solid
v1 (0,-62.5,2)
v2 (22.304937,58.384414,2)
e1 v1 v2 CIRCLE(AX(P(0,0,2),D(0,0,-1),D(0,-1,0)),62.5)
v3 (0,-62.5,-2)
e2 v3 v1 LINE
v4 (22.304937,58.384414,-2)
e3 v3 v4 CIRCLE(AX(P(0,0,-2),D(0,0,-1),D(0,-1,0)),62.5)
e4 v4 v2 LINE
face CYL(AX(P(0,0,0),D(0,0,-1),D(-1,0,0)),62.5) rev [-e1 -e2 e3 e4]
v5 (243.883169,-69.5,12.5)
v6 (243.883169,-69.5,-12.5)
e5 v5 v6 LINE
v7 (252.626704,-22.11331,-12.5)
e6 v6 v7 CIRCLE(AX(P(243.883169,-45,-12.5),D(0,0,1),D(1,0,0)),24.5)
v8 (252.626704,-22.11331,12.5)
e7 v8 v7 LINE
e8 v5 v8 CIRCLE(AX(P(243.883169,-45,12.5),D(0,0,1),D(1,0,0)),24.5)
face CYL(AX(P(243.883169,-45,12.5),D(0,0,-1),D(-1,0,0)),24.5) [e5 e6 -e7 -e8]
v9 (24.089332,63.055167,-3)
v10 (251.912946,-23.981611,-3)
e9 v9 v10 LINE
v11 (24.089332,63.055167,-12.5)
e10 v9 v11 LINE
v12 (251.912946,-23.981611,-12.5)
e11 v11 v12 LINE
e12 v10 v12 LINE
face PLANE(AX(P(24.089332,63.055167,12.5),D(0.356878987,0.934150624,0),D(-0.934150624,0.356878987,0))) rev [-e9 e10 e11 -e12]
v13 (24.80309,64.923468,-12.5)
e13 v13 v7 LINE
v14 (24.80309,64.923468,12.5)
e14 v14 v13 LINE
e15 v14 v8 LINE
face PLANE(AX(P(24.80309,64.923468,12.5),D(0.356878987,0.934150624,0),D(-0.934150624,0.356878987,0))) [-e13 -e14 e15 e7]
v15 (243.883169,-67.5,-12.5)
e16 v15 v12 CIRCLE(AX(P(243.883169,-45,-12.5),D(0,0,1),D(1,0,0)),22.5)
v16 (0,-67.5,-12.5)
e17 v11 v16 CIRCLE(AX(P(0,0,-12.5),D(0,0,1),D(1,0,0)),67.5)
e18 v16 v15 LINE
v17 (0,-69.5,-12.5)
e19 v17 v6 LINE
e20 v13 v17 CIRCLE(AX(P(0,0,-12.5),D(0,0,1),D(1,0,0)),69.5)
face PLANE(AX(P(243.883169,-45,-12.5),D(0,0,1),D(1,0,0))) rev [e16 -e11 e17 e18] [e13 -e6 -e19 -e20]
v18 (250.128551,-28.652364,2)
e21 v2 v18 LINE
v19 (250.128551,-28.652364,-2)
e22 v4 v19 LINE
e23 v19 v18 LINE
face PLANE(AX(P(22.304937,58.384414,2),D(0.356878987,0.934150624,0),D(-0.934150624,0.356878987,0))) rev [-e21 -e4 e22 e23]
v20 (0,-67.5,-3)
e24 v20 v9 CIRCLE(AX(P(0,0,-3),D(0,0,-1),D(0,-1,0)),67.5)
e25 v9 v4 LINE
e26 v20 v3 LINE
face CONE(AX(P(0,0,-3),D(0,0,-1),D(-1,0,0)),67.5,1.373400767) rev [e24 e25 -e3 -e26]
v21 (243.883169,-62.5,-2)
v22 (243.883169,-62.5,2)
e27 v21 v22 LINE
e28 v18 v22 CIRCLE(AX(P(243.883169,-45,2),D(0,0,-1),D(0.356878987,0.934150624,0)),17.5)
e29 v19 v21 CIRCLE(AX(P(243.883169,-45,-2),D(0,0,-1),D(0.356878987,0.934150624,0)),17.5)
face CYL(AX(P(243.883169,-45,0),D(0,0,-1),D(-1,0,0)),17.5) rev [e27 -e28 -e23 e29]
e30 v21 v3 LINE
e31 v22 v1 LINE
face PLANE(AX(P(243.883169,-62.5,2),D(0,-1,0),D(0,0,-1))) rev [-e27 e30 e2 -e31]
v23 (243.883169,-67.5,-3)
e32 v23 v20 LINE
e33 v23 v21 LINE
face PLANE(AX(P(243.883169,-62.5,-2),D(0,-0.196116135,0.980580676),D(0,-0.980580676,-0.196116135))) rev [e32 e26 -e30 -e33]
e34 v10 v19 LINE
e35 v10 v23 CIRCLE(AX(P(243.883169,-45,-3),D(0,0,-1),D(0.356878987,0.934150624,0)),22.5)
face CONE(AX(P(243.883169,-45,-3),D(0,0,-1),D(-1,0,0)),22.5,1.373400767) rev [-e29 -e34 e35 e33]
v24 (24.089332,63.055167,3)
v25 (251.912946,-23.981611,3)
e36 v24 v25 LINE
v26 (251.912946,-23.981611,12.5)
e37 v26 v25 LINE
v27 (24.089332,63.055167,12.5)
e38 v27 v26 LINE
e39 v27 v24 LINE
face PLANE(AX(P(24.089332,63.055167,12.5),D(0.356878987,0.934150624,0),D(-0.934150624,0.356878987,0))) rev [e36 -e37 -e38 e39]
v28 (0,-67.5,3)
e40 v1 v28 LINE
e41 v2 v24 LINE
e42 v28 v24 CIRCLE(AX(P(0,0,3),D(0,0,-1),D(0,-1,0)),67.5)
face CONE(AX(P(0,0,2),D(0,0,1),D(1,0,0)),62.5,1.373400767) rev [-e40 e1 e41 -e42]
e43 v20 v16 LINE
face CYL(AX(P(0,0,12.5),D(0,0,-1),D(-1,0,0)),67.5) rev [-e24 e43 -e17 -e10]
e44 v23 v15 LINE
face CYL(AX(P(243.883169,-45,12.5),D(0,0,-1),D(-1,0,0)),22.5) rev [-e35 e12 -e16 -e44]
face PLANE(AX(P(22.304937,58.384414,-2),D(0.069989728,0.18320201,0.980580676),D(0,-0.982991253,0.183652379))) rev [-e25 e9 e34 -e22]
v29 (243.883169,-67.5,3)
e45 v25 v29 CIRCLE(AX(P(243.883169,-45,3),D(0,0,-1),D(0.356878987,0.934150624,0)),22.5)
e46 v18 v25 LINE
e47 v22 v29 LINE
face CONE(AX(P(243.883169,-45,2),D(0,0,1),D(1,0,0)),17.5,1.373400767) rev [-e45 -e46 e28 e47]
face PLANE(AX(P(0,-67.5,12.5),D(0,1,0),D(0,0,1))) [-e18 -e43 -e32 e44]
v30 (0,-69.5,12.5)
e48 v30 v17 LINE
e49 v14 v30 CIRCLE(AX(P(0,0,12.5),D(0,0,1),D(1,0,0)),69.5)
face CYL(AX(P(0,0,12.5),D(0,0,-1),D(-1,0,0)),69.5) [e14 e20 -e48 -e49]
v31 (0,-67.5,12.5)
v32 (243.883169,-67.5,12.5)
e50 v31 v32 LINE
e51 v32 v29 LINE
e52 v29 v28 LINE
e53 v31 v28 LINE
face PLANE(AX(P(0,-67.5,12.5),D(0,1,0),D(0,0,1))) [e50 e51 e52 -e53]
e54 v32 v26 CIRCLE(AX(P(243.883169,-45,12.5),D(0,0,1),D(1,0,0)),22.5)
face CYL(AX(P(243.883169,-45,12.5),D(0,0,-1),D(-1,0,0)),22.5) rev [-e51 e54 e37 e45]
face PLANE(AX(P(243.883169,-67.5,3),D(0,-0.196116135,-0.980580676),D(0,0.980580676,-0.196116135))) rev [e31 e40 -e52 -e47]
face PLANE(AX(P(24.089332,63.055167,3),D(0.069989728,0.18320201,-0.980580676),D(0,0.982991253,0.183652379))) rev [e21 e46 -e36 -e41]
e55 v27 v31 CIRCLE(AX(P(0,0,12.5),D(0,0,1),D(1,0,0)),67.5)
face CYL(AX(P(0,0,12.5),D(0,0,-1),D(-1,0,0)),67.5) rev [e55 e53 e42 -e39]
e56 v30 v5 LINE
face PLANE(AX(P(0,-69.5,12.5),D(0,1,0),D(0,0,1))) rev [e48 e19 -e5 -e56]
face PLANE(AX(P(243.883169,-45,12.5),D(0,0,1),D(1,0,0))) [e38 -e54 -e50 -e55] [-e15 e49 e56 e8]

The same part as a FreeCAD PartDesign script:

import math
import FreeCAD as App
import Part
import Sketcher

V = App.Vector


def add_polygon(sketch, points):
    """Adds a closed chain of lines whose ends are joined by coincident constraints."""
    first, n = sketch.GeometryCount, len(points)
    for a, b in zip(points, points[1:] + points[:1]):
        sketch.addGeometry(Part.LineSegment(App.Vector(*a, 0), App.Vector(*b, 0)), False)
    for i in range(n):
        sketch.addConstraint(Sketcher.Constraint("Coincident", first + i, 2, first + (i + 1) % n, 1))

doc = App.newDocument("Part")
body = doc.addObject("PartDesign::Body", "Body")

# Sketch on XY plane
sketch1 = body.newObject("Sketcher::SketchObject", "Sketch")
sketch1.AttachmentSupport = (doc.getObject("XY_Plane"), [""])
sketch1.MapMode = "FlatFace"
sketch1.addGeometry(Part.LineSegment(V(253, -22, 0), V(25, 65, 0)), False)
sketch1.addGeometry(Part.ArcOfCircle(Part.Circle(V(0, 0, 0), V(0, 0, 1), 70), math.radians(69), math.radians(270)), False)
sketch1.addGeometry(Part.LineSegment(V(0, -70, 0), V(244, -70, 0)), False)
sketch1.addGeometry(Part.ArcOfCircle(Part.Circle(V(244, -45, 0), V(0, 0, 1), 24), math.radians(-90), math.radians(69)), False)
sketch1.addGeometry(Part.LineSegment(V(24, 63, 0), V(252, -24, 0)), False)
sketch1.addGeometry(Part.ArcOfCircle(Part.Circle(V(244, -45, 0), V(0, 0, 1), 22), math.radians(-90), math.radians(69)), False)
sketch1.addGeometry(Part.LineSegment(V(244, -68, 0), V(0, -68, 0)), False)
sketch1.addGeometry(Part.ArcOfCircle(Part.Circle(V(0, 0, 0), V(0, 0, 1), 68), math.radians(69), math.radians(270)), False)
sketch1.addConstraint(Sketcher.Constraint("Tangent", 0, 2, 1, 1))
sketch1.addConstraint(Sketcher.Constraint("Tangent", 1, 2, 2, 1))
sketch1.addConstraint(Sketcher.Constraint("Tangent", 2, 2, 3, 1))
sketch1.addConstraint(Sketcher.Constraint("Tangent", 3, 2, 0, 1))
sketch1.addConstraint(Sketcher.Constraint("Tangent", 4, 2, 5, 2))
sketch1.addConstraint(Sketcher.Constraint("Tangent", 5, 1, 6, 1))
sketch1.addConstraint(Sketcher.Constraint("Tangent", 6, 2, 7, 2))
sketch1.addConstraint(Sketcher.Constraint("Tangent", 7, 1, 4, 1))
sketch1.addConstraint(Sketcher.Constraint("Horizontal", 2))
sketch1.addConstraint(Sketcher.Constraint("Horizontal", 6))
sketch1.addConstraint(Sketcher.Constraint("Coincident", 1, 3, -1, 1))
sketch1.addConstraint(Sketcher.Constraint("Coincident", 7, 3, -1, 1))
sketch1.addConstraint(Sketcher.Constraint("Coincident", 5, 3, 3, 3))
sketch1.addConstraint(Sketcher.Constraint("Radius", 1, 69.5))
sketch1.addConstraint(Sketcher.Constraint("Radius", 3, 24.5))
sketch1.addConstraint(Sketcher.Constraint("Radius", 5, 22.5))
sketch1.addConstraint(Sketcher.Constraint("DistanceX", 2, 1, 2, 2, 243.883169))
pad1 = body.newObject("PartDesign::Pad", "Pad")
pad1.Profile = sketch1
pad1.Length = 25
pad1.Midplane = True

# Sketch on YZ plane
sketch2 = body.newObject("Sketcher::SketchObject", "Sketch001")
sketch2.AttachmentSupport = (doc.getObject("YZ_Plane"), [""])
sketch2.MapMode = "FlatFace"
add_polygon(sketch2, [(-62.5, 2), (-67.5, 3), (-67.5, -3), (-62.5, -2)])  # lines 0-3
sketch2.addConstraint(Sketcher.Constraint("Vertical", 1))
sketch2.addConstraint(Sketcher.Constraint("Vertical", 3))
sketch2.addConstraint(Sketcher.Constraint("Equal", 0, 2))
sketch2.addConstraint(Sketcher.Constraint("DistanceY", 1, 2, 1, 1, 6.0))
sketch2.addConstraint(Sketcher.Constraint("DistanceY", 3, 1, 3, 2, 4.0))
sketch2.addConstraint(Sketcher.Constraint("DistanceY", -1, 1, 0, 2, 3.0))
sketch2.addConstraint(Sketcher.Constraint("DistanceX", 1, 2, 2, 2, 5.0))
sketch2.addConstraint(Sketcher.Constraint("DistanceX", 0, 2, -1, 1, 67.5))

# Sketch on XY plane
sketch3 = body.newObject("Sketcher::SketchObject", "Sketch002")
sketch3.AttachmentSupport = (doc.getObject("XY_Plane"), [""])
sketch3.MapMode = "FlatFace"
sketch3.addGeometry(Part.LineSegment(V(0, -68, 0), V(244, -68, 0)), False)
sketch3.addGeometry(Part.ArcOfCircle(Part.Circle(V(244, -45, 0), V(0, 0, 1), 22), math.radians(-90), math.radians(69)), False)
sketch3.addGeometry(Part.LineSegment(V(252, -24, 0), V(24, 63, 0)), False)
sketch3.addGeometry(Part.ArcOfCircle(Part.Circle(V(0, 0, 0), V(0, 0, 1), 68), math.radians(69), math.radians(270)), False)
sketch3.addConstraint(Sketcher.Constraint("Tangent", 0, 2, 1, 1))
sketch3.addConstraint(Sketcher.Constraint("Tangent", 1, 2, 2, 1))
sketch3.addConstraint(Sketcher.Constraint("Tangent", 2, 2, 3, 1))
sketch3.addConstraint(Sketcher.Constraint("Tangent", 3, 2, 0, 1))
sketch3.addConstraint(Sketcher.Constraint("Horizontal", 0))
sketch3.addConstraint(Sketcher.Constraint("Coincident", 3, 3, -1, 1))
sketch3.addConstraint(Sketcher.Constraint("Radius", 1, 22.5))
sketch3.addConstraint(Sketcher.Constraint("Radius", 3, 67.5))
sketch3.addConstraint(Sketcher.Constraint("DistanceX", 0, 1, 0, 2, 243.883169))
doc.recompute()

additivepipe = body.newObject("PartDesign::AdditivePipe", "AdditivePipe")
additivepipe.Profile = sketch2
additivepipe.Spine = (sketch3, ["Edge1", "Edge2", "Edge3", "Edge4"])

doc.recompute()
